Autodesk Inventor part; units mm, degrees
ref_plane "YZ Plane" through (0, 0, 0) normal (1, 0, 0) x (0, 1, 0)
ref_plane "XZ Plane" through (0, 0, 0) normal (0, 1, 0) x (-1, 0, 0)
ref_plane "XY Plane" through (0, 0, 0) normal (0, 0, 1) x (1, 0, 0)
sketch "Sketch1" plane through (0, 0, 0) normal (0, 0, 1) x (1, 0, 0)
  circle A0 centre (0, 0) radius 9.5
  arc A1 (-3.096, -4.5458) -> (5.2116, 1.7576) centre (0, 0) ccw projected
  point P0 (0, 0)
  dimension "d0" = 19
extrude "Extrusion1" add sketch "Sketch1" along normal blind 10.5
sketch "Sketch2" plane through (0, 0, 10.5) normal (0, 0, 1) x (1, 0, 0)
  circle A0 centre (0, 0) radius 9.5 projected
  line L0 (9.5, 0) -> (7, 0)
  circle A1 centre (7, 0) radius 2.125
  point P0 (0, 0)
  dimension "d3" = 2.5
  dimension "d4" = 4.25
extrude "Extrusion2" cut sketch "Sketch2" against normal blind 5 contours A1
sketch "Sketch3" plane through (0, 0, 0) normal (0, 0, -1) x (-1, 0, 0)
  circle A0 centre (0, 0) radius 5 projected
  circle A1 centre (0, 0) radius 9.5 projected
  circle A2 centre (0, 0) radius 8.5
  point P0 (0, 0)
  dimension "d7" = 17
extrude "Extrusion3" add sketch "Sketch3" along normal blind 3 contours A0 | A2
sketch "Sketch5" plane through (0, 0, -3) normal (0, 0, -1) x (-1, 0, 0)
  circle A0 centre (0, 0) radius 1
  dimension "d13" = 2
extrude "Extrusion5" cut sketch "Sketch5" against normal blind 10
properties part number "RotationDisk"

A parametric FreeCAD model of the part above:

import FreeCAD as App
import Part
import Sketcher
Q = App.Units.Quantity

doc = App.newDocument("Part")
params = doc.addObject("Spreadsheet::Sheet", "Params")
for row, (alias, value) in enumerate([
    ("sketch1_diameter", "19 mm"),
    ("pad1_length", "10.5 mm"),
    ("sketch2_diameter", "4.25 mm"),
    ("pocket1_length", "5 mm"),
    ("sketch3_diameter", "17 mm"),
    ("pad2_length", "3 mm"),
    ("sketch4_diameter", "2 mm"),
    ("pocket2_length", "10 mm"),
], start=1):
    params.set(f"A{row}", alias)
    params.set(f"B{row}", "=" + value)
    params.setAlias(f"B{row}", alias)

body = doc.addObject("PartDesign::Body", "Body")

sketch1 = body.newObject("Sketcher::SketchObject", "Sketch")
sketch1.AttachmentSupport = (doc.getObject("XY_Plane"), [""])
sketch1.MapMode = "FlatFace"
sketch1.addGeometry(Part.Circle(App.Vector(0, 0, 0), App.Vector(0, 0, 1), 10), False)
sketch1.addConstraint(Sketcher.Constraint("Coincident", 0, 3, -1, 1))
sketch1.addConstraint(Sketcher.Constraint("Diameter", 0, Q("19 mm")))
sketch1.setExpression("Constraints[1]", "Params.sketch1_diameter")
pad1 = body.newObject("PartDesign::Pad", "Pad")
pad1.Profile = sketch1
pad1.setExpression("Length", "Params.pad1_length")

sketch2 = body.newObject("Sketcher::SketchObject", "Sketch001")
sketch2.AttachmentSupport = (doc.getObject("XY_Plane"), [""])
sketch2.MapMode = "FlatFace"
sketch2.AttachmentOffset = App.Placement(App.Vector(0, 0, 10.5), App.Rotation())
sketch2.addGeometry(Part.Circle(App.Vector(7, 0, 0), App.Vector(0, 0, 1), 2.1), False)
sketch2.addConstraint(Sketcher.Constraint("PointOnObject", 0, 3, -1))
sketch2.addConstraint(Sketcher.Constraint("Diameter", 0, Q("4.25 mm")))
sketch2.addConstraint(Sketcher.Constraint("DistanceX", -1, 1, 0, 3, Q("7 mm")))
sketch2.setExpression("Constraints[1]", "Params.sketch2_diameter")
pocket1 = body.newObject("PartDesign::Pocket", "Pocket")
pocket1.Profile = sketch2
pocket1.setExpression("Length", "Params.pocket1_length")

sketch3 = body.newObject("Sketcher::SketchObject", "Sketch002")
sketch3.AttachmentSupport = (doc.getObject("XY_Plane"), [""])
sketch3.MapMode = "FlatFace"
sketch3.addGeometry(Part.Circle(App.Vector(0, 0, 0), App.Vector(0, 0, 1), 8), False)
sketch3.addConstraint(Sketcher.Constraint("Coincident", 0, 3, -1, 1))
sketch3.addConstraint(Sketcher.Constraint("Diameter", 0, Q("17 mm")))
sketch3.setExpression("Constraints[1]", "Params.sketch3_diameter")
pad2 = body.newObject("PartDesign::Pad", "Pad001")
pad2.Profile = sketch3
pad2.setExpression("Length", "Params.pad2_length")
pad2.Reversed = True

sketch4 = body.newObject("Sketcher::SketchObject", "Sketch003")
sketch4.AttachmentSupport = (doc.getObject("XY_Plane"), [""])
sketch4.MapMode = "FlatFace"
sketch4.AttachmentOffset = App.Placement(App.Vector(0, 0, -3), App.Rotation())
sketch4.addGeometry(Part.Circle(App.Vector(0, 0, 0), App.Vector(0, 0, 1), 1), False)
sketch4.addConstraint(Sketcher.Constraint("Coincident", 0, 3, -1, 1))
sketch4.addConstraint(Sketcher.Constraint("Diameter", 0, Q("2 mm")))
sketch4.setExpression("Constraints[1]", "Params.sketch4_diameter")
pocket2 = body.newObject("PartDesign::Pocket", "Pocket001")
pocket2.Profile = sketch4
pocket2.setExpression("Length", "Params.pocket2_length")
pocket2.Reversed = True

doc.recompute()
